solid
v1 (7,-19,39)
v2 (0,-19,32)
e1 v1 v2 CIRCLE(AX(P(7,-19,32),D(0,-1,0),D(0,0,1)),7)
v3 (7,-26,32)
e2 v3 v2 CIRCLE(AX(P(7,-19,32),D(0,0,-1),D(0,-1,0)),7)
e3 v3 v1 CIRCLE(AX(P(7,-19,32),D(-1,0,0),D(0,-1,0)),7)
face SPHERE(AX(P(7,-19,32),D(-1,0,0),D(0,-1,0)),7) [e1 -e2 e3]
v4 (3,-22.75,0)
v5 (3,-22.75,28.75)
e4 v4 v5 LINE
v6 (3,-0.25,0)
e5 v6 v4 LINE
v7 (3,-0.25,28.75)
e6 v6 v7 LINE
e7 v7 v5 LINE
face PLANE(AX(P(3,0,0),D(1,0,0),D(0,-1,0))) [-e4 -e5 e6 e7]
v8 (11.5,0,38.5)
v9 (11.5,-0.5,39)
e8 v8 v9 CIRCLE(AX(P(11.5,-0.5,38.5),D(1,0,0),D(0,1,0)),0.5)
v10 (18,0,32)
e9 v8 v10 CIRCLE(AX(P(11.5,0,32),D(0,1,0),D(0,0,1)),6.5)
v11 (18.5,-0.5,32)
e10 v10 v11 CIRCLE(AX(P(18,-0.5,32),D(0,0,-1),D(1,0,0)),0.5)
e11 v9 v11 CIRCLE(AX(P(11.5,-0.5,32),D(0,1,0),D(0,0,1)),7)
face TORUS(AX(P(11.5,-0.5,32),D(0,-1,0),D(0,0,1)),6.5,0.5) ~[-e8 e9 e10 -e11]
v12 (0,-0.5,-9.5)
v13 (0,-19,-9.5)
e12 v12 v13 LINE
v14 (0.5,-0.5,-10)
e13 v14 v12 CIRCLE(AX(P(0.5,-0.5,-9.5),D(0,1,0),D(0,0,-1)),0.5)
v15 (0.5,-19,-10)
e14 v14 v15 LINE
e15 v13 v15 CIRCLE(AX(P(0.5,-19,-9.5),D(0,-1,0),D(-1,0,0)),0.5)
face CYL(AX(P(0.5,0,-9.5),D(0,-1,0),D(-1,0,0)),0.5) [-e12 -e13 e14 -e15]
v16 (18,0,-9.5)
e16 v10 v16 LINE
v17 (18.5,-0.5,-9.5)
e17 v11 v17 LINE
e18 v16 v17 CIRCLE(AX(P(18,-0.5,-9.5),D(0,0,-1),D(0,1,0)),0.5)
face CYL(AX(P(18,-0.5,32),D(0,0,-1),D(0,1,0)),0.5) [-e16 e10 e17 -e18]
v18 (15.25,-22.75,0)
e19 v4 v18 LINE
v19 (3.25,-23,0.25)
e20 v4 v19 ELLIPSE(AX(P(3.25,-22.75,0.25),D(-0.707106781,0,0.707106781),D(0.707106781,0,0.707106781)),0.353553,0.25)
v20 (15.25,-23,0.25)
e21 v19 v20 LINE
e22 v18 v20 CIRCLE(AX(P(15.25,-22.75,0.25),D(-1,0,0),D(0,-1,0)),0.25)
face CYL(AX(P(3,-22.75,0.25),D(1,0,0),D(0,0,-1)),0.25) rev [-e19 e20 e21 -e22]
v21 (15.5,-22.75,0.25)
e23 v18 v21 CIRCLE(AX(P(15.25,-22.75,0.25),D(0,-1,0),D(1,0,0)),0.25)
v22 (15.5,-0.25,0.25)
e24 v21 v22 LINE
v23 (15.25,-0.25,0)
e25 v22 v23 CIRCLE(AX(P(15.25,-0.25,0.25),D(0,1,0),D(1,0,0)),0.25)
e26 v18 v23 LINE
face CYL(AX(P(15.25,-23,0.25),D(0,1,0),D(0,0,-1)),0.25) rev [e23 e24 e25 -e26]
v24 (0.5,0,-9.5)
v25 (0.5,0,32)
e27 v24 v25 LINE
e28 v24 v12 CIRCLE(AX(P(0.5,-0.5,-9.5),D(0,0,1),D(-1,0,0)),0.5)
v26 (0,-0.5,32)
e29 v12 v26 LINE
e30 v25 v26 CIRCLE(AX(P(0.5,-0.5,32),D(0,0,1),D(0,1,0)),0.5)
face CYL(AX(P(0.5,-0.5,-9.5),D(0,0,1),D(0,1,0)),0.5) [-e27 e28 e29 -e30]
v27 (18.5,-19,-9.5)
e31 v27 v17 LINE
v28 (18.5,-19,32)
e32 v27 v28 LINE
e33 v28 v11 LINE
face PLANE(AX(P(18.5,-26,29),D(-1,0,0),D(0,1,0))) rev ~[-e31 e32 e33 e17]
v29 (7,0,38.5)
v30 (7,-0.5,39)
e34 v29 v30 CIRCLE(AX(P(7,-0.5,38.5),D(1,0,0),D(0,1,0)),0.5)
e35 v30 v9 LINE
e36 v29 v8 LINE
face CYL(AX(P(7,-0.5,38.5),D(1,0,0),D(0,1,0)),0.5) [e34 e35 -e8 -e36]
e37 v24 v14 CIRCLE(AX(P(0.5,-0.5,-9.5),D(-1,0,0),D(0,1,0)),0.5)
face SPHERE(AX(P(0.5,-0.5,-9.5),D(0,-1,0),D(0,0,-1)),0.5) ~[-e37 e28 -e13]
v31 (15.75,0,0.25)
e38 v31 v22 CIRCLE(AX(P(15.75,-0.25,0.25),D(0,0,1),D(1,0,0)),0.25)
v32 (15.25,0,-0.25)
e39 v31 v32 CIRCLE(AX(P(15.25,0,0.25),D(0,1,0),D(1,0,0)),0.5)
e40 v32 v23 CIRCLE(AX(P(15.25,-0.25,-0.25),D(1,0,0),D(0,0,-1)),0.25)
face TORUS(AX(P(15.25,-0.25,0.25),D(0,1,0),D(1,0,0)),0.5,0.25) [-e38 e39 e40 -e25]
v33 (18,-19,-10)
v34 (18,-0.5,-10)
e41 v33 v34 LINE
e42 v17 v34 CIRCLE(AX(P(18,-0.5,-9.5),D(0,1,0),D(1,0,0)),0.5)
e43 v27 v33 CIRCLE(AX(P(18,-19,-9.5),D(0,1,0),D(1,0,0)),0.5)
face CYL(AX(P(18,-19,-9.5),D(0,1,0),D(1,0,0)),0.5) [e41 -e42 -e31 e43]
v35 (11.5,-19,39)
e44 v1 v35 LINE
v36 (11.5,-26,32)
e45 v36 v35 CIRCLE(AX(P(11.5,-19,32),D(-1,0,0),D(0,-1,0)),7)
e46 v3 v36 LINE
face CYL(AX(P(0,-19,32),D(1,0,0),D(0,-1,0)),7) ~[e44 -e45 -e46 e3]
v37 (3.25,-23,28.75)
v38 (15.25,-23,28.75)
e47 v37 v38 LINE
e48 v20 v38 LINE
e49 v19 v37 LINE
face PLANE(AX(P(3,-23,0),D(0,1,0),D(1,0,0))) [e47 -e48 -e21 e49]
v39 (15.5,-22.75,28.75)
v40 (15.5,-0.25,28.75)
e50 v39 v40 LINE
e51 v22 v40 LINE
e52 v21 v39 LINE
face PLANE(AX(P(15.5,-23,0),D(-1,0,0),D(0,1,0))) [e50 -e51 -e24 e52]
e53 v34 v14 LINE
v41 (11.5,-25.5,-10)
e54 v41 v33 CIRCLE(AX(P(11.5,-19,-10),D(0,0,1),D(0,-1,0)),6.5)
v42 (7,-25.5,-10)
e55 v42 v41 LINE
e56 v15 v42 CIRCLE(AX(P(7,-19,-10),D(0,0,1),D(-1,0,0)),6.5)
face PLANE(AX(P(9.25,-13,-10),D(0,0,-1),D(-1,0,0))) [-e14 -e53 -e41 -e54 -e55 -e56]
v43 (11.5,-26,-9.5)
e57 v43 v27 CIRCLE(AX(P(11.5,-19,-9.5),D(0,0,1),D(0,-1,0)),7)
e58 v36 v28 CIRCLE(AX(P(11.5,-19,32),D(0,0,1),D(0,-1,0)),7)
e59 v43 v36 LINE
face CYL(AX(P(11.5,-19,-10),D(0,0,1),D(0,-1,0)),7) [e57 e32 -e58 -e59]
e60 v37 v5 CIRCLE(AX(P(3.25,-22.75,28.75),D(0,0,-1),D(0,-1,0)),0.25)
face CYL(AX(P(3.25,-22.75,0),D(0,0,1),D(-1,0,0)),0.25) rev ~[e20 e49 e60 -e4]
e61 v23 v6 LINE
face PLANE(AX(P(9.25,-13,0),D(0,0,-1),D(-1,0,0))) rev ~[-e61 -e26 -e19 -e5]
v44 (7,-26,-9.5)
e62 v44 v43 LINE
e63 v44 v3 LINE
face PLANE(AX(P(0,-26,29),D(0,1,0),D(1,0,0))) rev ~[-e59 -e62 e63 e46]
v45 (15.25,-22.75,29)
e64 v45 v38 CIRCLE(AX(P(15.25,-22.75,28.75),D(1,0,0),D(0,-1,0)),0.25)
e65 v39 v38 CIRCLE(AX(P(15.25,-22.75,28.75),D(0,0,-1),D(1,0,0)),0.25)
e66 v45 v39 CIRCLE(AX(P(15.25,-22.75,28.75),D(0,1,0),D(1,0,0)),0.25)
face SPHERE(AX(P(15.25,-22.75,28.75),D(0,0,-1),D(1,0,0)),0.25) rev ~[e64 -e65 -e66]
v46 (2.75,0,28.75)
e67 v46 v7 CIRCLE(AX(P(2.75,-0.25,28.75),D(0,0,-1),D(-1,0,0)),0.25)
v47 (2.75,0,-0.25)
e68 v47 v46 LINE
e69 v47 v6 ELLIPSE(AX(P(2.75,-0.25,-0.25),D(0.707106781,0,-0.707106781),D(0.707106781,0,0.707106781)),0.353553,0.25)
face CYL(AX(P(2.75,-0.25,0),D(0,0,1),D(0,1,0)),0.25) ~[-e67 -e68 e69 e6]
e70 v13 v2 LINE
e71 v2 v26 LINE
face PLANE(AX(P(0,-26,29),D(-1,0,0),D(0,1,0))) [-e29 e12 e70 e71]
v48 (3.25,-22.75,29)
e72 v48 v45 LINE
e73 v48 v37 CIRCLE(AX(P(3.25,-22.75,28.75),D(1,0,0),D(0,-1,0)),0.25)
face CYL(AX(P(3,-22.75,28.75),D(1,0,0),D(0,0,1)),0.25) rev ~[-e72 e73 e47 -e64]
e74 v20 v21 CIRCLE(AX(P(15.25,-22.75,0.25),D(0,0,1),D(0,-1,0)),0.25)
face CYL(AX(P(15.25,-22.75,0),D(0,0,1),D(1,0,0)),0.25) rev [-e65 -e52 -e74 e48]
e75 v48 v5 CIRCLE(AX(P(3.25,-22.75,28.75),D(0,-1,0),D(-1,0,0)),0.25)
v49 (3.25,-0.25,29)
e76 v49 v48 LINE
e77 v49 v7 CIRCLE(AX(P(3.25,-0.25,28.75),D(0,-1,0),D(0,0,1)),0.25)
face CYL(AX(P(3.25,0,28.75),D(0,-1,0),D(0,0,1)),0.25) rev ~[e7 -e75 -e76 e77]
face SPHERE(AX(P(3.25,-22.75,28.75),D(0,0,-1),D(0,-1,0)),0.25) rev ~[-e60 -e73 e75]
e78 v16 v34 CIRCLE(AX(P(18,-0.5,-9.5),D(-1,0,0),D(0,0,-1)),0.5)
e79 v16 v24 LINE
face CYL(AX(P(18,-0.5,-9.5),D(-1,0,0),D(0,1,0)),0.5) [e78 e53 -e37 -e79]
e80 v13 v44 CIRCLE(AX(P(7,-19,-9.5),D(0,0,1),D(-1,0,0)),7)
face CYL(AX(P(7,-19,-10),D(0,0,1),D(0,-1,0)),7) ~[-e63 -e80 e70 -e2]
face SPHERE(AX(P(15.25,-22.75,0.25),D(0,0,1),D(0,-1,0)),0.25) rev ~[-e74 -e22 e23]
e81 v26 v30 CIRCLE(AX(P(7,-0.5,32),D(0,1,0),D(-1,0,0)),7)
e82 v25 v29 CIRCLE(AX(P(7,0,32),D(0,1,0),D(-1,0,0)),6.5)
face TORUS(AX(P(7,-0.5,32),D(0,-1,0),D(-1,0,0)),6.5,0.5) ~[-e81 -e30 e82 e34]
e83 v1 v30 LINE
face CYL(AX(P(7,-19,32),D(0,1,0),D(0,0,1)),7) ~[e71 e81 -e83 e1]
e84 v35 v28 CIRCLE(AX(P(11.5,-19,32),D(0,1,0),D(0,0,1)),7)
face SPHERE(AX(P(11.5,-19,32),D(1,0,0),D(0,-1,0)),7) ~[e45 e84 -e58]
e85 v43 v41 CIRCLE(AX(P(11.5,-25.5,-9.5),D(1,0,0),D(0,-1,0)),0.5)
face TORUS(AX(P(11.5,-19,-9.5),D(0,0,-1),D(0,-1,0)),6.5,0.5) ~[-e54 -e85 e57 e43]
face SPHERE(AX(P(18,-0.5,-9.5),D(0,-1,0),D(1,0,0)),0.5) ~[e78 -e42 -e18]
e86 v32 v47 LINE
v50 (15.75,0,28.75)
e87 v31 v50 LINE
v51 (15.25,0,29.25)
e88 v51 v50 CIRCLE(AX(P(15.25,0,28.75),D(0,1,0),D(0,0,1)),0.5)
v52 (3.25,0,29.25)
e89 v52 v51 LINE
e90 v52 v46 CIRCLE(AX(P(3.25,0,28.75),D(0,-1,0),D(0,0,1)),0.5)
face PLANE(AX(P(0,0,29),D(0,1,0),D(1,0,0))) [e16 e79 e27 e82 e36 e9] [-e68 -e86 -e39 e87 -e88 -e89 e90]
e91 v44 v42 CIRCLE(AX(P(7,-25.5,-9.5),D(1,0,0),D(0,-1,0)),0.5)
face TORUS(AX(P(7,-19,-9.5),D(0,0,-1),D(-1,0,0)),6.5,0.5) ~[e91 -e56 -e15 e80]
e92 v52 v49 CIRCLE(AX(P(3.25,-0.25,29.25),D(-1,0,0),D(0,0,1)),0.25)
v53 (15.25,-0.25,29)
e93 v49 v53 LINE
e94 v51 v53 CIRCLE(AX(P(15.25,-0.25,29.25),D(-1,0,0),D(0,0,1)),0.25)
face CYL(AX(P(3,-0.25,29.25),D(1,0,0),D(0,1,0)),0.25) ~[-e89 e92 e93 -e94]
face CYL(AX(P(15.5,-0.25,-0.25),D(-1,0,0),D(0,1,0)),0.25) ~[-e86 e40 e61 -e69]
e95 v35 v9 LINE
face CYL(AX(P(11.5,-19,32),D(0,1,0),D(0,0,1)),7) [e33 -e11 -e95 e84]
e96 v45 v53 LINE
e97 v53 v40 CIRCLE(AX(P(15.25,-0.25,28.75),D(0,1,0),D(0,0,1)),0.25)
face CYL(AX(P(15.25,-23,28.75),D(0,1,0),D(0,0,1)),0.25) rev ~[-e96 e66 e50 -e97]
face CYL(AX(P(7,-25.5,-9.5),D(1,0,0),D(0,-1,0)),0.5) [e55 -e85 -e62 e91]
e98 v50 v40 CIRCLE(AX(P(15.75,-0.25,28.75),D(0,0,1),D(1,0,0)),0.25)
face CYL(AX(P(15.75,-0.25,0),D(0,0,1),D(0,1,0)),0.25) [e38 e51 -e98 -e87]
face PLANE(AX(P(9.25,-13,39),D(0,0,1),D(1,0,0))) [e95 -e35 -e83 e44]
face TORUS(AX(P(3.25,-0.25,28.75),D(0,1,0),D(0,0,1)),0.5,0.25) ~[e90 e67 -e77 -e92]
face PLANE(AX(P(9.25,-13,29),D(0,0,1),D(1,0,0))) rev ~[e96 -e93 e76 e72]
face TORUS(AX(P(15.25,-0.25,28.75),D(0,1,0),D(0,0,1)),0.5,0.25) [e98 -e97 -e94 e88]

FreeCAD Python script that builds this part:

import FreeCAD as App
import Part
import Sketcher
from FreeCAD import Vector
Q = App.Units.Quantity


def edges_at(feature, points):
    """Names of the edges that pass closest to the given points."""
    edges = feature.Shape.Edges
    near = lambda p: min(range(len(edges)), key=lambda i: edges[i].distToShape(Part.Vertex(*p))[0])
    return sorted({f"Edge{near(p) + 1}" for p in points})


def add_polygon(sketch, points):
    """Adds a closed chain of lines whose ends are joined by coincident constraints."""
    first, n = sketch.GeometryCount, len(points)
    for a, b in zip(points, points[1:] + points[:1]):
        sketch.addGeometry(Part.LineSegment(App.Vector(*a, 0), App.Vector(*b, 0)), False)
    for i in range(n):
        sketch.addConstraint(Sketcher.Constraint("Coincident", first + i, 2, first + (i + 1) % n, 1))

doc = App.newDocument("Part")
body = doc.addObject("PartDesign::Body", "Body")

sketch1 = body.newObject("Sketcher::SketchObject", "Sketch")
sketch1.AttachmentSupport = (doc.getObject("XY_Plane"), [""])
sketch1.MapMode = "FlatFace"
add_polygon(sketch1, [(3, 0), (0, 0), (0, -26), (18.5, -26), (18.5, 0), (15.5, 0), (15.5, -23), (3, -23)])
sketch1.addConstraint([
    Sketcher.Constraint("Horizontal", 0),
    Sketcher.Constraint("Vertical", 1),
    Sketcher.Constraint("Horizontal", 2),
    Sketcher.Constraint("Vertical", 3),
    Sketcher.Constraint("Horizontal", 4),
    Sketcher.Constraint("Vertical", 5),
    Sketcher.Constraint("Horizontal", 6),
    Sketcher.Constraint("Vertical", 7),
    Sketcher.Constraint("Coincident", 0, 2, -1, 1),
    Sketcher.Constraint("PointOnObject", 3, 2, -1),
    Sketcher.Constraint("Equal", 0, 4),
    Sketcher.Constraint("DistanceX", 0, 2, 0, 1, Q("3 mm")),
    Sketcher.Constraint("DistanceY", 1, 2, 1, 1, Q("26 mm")),
    Sketcher.Constraint("DistanceY", 5, 2, 5, 1, Q("23 mm")),
    Sketcher.Constraint("DistanceX", 2, 1, 2, 2, Q("18.5 mm")),
])
pad1 = body.newObject("PartDesign::Pad", "Pad")
pad1.Profile = sketch1
pad1.Length = 29

sketch2 = body.newObject("Sketcher::SketchObject", "Sketch001")
sketch2.AttachmentSupport = (doc.getObject("XY_Plane"), [""])
sketch2.MapMode = "FlatFace"
add_polygon(sketch2, [(18, 0), (18, -26), (0, -26), (0, 0)])
sketch2.addConstraint([
    Sketcher.Constraint("Vertical", 0),
    Sketcher.Constraint("Horizontal", 1),
    Sketcher.Constraint("Vertical", 2),
    Sketcher.Constraint("Horizontal", 3),
    Sketcher.Constraint("Coincident", 2, 2, -1, 1),
    Sketcher.Constraint("DistanceY", 0, 2, 0, 1, Q("26 mm")),
    Sketcher.Constraint("DistanceX", 1, 2, 1, 1, Q("18.5 mm")),
])
pad2 = body.newObject("PartDesign::Pad", "Pad001")
pad2.Profile = sketch2
pad2.Length = 10
pad2.Reversed = True

sketch3 = body.newObject("Sketcher::SketchObject", "Sketch002")
sketch3.AttachmentSupport = (doc.getObject("XY_Plane"), [""])
sketch3.MapMode = "FlatFace"
sketch3.AttachmentOffset = App.Placement(Vector(0, 0, 29), App.Rotation())
add_polygon(sketch3, [(0, 0), (0, -26), (18, -26), (18, 0)])
sketch3.addConstraint([
    Sketcher.Constraint("Vertical", 0),
    Sketcher.Constraint("Horizontal", 1),
    Sketcher.Constraint("Vertical", 2),
    Sketcher.Constraint("Horizontal", 3),
    Sketcher.Constraint("Coincident", 3, 2, -1, 1),
    Sketcher.Constraint("DistanceY", 0, 2, 0, 1, Q("26 mm")),
    Sketcher.Constraint("DistanceX", 1, 1, 1, 2, Q("18.5 mm")),
])
pad3 = body.newObject("PartDesign::Pad", "Pad002")
pad3.Profile = sketch3
pad3.Length = 10
doc.recompute()

fillet = body.newObject("PartDesign::Fillet", "Fillet")
fillet.Base = (pad3, edges_at(pad3, [(9.25, -26, 39)]))
fillet.Radius = 7
doc.recompute()

fillet2 = body.newObject("PartDesign::Fillet", "Fillet001")
fillet2.Base = (fillet, edges_at(fillet, [(18.5, -9.5, 39), (18.5, -26, 11), (18.5, -23.95, 36.95)]))
fillet2.Radius = 7
doc.recompute()

fillet3 = body.newObject("PartDesign::Fillet", "Fillet002")
fillet3.Base = (fillet2, edges_at(fillet2, [(0, -9.5, 39), (0, -26, 11), (0, -23.95, 36.95)]))
fillet3.Radius = 7
doc.recompute()

fillet4 = body.newObject("PartDesign::Fillet", "Fillet003")
fillet4.Base = (fillet3, edges_at(fillet3, [
    (18.5, -9.5, -10),
    (9.25, -26, -10),
    (16.45, -23.95, -10),
    (0, -9.5, -10),
    (2.05, -23.95, -10),
]))
fillet4.Radius = 0.5
doc.recompute()

fillet5 = body.newObject("PartDesign::Fillet", "Fillet004")
fillet5.Base = (fillet4, edges_at(fillet4, [
    (9.25, 0, 39),
    (18.5, 0, 11.25),
    (16.45, 0, 36.95),
    (0, 0, 11.25),
    (2.05, 0, 36.95),
    (9.25, 0, -10),
    (0.146, 0, -9.854),
    (18.354, 0, -9.854),
]))
fillet5.Radius = 0.5
doc.recompute()

fillet6 = body.newObject("PartDesign::Fillet", "Fillet005")
fillet6.Base = (fillet5, edges_at(fillet5, [
    (3, 0, 14.5),
    (3, -23, 14.5),
    (15.5, -23, 14.5),
    (15.5, 0, 14.5),
    (15.5, -11.5, 29),
    (9.25, -23, 29),
    (3, -11.5, 29),
    (9.25, 0, 0),
    (9.25, 0, 29),
    (9.25, -23, 0),
    (15.5, -11.5, 0),
]))
fillet6.Radius = 0.25

doc.recompute()
